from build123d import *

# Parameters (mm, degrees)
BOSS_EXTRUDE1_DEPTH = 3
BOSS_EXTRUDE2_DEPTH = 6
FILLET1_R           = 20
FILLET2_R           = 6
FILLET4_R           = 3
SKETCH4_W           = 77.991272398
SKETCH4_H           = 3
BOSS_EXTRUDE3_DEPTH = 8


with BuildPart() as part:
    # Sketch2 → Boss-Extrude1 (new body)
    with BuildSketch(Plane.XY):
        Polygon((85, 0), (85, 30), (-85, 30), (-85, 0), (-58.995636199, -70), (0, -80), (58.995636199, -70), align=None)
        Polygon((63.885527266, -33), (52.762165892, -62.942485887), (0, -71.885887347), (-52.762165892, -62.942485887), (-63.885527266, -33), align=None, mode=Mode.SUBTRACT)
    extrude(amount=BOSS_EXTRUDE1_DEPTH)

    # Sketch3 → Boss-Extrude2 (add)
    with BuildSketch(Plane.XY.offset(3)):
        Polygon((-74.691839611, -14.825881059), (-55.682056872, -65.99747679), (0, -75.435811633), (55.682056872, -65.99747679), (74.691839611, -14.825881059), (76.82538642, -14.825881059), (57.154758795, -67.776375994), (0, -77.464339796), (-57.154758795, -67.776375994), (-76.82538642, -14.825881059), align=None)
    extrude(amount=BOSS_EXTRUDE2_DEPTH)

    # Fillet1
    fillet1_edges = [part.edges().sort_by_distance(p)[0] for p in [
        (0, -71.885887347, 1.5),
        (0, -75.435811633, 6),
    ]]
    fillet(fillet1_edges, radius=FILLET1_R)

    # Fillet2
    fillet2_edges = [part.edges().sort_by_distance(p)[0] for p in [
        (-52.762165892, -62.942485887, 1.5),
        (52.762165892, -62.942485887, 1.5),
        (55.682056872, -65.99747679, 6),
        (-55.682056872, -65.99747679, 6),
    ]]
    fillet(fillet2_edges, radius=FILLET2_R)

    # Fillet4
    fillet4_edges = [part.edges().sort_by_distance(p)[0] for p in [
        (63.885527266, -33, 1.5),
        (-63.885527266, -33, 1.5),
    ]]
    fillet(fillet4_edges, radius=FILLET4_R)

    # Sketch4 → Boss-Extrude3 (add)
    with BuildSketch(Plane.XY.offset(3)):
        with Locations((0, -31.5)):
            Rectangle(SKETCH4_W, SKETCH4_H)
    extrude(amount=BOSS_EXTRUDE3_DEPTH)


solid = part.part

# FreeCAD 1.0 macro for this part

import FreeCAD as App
import Part
import Sketcher

V = App.Vector


def edges_at(feature, points):
    """Names of the edges that pass closest to the given points."""
    edges = feature.Shape.Edges
    near = lambda p: min(range(len(edges)), key=lambda i: edges[i].distToShape(Part.Vertex(*p))[0])
    return sorted({f"Edge{near(p) + 1}" for p in points})


def add_polygon(sketch, points):
    """Adds a closed chain of lines whose ends are joined by coincident constraints."""
    first, n = sketch.GeometryCount, len(points)
    for a, b in zip(points, points[1:] + points[:1]):
        sketch.addGeometry(Part.LineSegment(App.Vector(*a, 0), App.Vector(*b, 0)), False)
    for i in range(n):
        sketch.addConstraint(Sketcher.Constraint("Coincident", first + i, 2, first + (i + 1) % n, 1))

doc = App.newDocument("Part")
body = doc.addObject("PartDesign::Body", "Body")

# Sketch on XY plane
sketch1 = doc.addObject("Sketcher::SketchObject", "Sketch")
body.addObject(sketch1)
sketch1.AttachmentSupport = (doc.XY_Plane, [""])
sketch1.MapMode = "FlatFace"
add_polygon(sketch1, [(85, 0), (85, 30), (-85, 30), (-85, 0), (-59, -70), (0, -80), (59, -70)])  # lines 0-6
add_polygon(sketch1, [(-64, -33), (64, -33), (53, -63), (0, -72), (-53, -63)])  # lines 7-11
sketch1.addConstraint([
    Sketcher.Constraint("Vertical", 0),
    Sketcher.Constraint("Horizontal", 1),
    Sketcher.Constraint("Vertical", 2),
    Sketcher.Constraint("Horizontal", 7),
    Sketcher.Constraint("Symmetric", 2, 2, 6, 2, -1, 1),
    Sketcher.Constraint("Symmetric", 3, 2, 5, 2, -2),
    Sketcher.Constraint("Symmetric", 8, 2, 10, 2, -2),
    Sketcher.Constraint("PointOnObject", 2, 2, -1),
    Sketcher.Constraint("PointOnObject", 4, 2, -2),
    Sketcher.Constraint("PointOnObject", 9, 2, -2),
    Sketcher.Constraint("Parallel", 6, 8),
    Sketcher.Constraint("Parallel", 5, 9),
    Sketcher.Constraint("Parallel", 3, 11),
    Sketcher.Constraint("DistanceX", 1, 2, 1, 1, 170.0),
    Sketcher.Constraint("DistanceY", 0, 1, 0, 2, 30.0),
    Sketcher.Constraint("DistanceY", 3, 2, -1, 1, 70.0),
    Sketcher.Constraint("DistanceY", 4, 2, -1, 1, 80.0),
    Sketcher.Constraint("DistanceY", 7, 2, -1, 1, 33.0),
    Sketcher.Constraint("DistanceY", 9, 2, 8, 2, 8.943401),
    Sketcher.Constraint("Distance", 3, 74.674138),
    Sketcher.Constraint("DistanceX", 7, 1, 7, 2, 127.771055),
])
pad1 = doc.addObject("PartDesign::Pad", "Pad")
body.addObject(pad1)
pad1.Profile = sketch1
pad1.Length = 3

# Sketch on XY plane
sketch2 = doc.addObject("Sketcher::SketchObject", "Sketch001")
body.addObject(sketch2)
sketch2.AttachmentSupport = (doc.XY_Plane, [""])
sketch2.MapMode = "FlatFace"
sketch2.AttachmentOffset = App.Placement(V(0, 0, 3), App.Rotation())
add_polygon(sketch2, [(-55.7, -66), (-74.7, -14.8), (-76.8, -14.8), (-57.2, -67.8), (0, -77.5), (57.2, -67.8), (76.8, -14.8), (74.7, -14.8), (55.7, -66), (0, -75.4)])  # lines 0-9
sketch2.addConstraint([
    Sketcher.Constraint("Horizontal", 1),
    Sketcher.Constraint("Horizontal", 6),
    Sketcher.Constraint("Symmetric", 2, 2, 4, 2, -2),
    Sketcher.Constraint("Symmetric", 1, 2, 5, 2, -2),
    Sketcher.Constraint("Symmetric", 7, 2, 9, 2, -2),
    Sketcher.Constraint("PointOnObject", 3, 2, -2),
    Sketcher.Constraint("PointOnObject", 8, 2, -2),
    Sketcher.Constraint("Parallel", 0, 2),
    Sketcher.Constraint("Parallel", 5, 7),
    Sketcher.Constraint("Parallel", 4, 8),
    Sketcher.Constraint("DistanceX", 0, 2, 4, 2, 131.846598),
    Sketcher.Constraint("DistanceX", 7, 2, 4, 2, 1.472702),
    Sketcher.Constraint("DistanceY", 4, 2, 7, 2, 1.778899),
    Sketcher.Constraint("Distance", 2, 56.48618),
    Sketcher.Constraint("Distance", 3, 57.970019),
    Sketcher.Constraint("DistanceX", 1, 2, 1, 1, 2.133547),
    Sketcher.Constraint("DistanceY", 0, 2, -1, 1, 14.825881),
])
pad2 = doc.addObject("PartDesign::Pad", "Pad001")
body.addObject(pad2)
pad2.Profile = sketch2
pad2.Length = 6
doc.recompute()

fillet = doc.addObject("PartDesign::Fillet", "Fillet")
body.addObject(fillet)
fillet.Base = (pad2, edges_at(pad2, [(0, -71.886, 1.5), (0, -75.436, 6)]))
fillet.Radius = 20
doc.recompute()

fillet2 = doc.addObject("PartDesign::Fillet", "Fillet001")
body.addObject(fillet2)
fillet2.Base = (fillet, edges_at(fillet, [
    (-52.762, -62.942, 1.5),
    (52.762, -62.942, 1.5),
    (55.682, -65.997, 6),
    (-55.682, -65.997, 6),
]))
fillet2.Radius = 6
doc.recompute()

fillet3 = doc.addObject("PartDesign::Fillet", "Fillet002")
body.addObject(fillet3)
fillet3.Base = (fillet2, edges_at(fillet2, [(63.886, -33, 1.5), (-63.886, -33, 1.5)]))
fillet3.Radius = 3

# Sketch on XY plane
sketch3 = doc.addObject("Sketcher::SketchObject", "Sketch002")
body.addObject(sketch3)
sketch3.AttachmentSupport = (doc.XY_Plane, [""])
sketch3.MapMode = "FlatFace"
sketch3.AttachmentOffset = App.Placement(V(0, 0, 3), App.Rotation())
add_polygon(sketch3, [(-39, -30), (-39, -33), (39, -33), (39, -30)])  # lines 0-3
sketch3.addConstraint([
    Sketcher.Constraint("Vertical", 0),
    Sketcher.Constraint("Horizontal", 1),
    Sketcher.Constraint("Vertical", 2),
    Sketcher.Constraint("Horizontal", 3),
    Sketcher.Constraint("DistanceY", 0, 2, 0, 1, 3.0),
    Sketcher.Constraint("DistanceY", 0, 2, -1, 1, 33.0),
    Sketcher.Constraint("DistanceX", 1, 1, 1, 2, 77.991272),
    Sketcher.Constraint("DistanceX", 0, 2, -1, 1, 38.995636),
])
pad3 = doc.addObject("PartDesign::Pad", "Pad002")
body.addObject(pad3)
pad3.Profile = sketch3
pad3.Length = 8

doc.recompute()
